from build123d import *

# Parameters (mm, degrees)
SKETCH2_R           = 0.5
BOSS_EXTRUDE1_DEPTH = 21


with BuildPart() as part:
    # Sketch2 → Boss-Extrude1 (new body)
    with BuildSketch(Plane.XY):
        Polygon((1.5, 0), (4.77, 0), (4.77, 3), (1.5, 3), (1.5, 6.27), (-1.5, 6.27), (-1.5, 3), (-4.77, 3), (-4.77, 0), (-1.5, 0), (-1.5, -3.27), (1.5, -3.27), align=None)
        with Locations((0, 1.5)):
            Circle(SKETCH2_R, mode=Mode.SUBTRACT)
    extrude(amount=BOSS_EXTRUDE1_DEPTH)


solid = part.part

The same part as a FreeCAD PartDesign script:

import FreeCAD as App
import Part
import Sketcher
from FreeCAD import Vector
Q = App.Units.Quantity

doc = App.newDocument("Part")
params = doc.addObject("Spreadsheet::Sheet", "Params")
for row, (alias, value) in enumerate([
    ("sketch1_diameter", "1 mm"),
    ("sketch1_width", "3 mm"),
    ("sketch1_width2", "3.27 mm"),
    ("pad1_length", "21 mm"),
], start=1):
    params.set(f"A{row}", alias)
    params.set(f"B{row}", "=" + value)
    params.setAlias(f"B{row}", alias)

body = doc.addObject("PartDesign::Body", "Body")

# Sketch on XY plane
sketch1 = doc.addObject("Sketcher::SketchObject", "Sketch")
body.addObject(sketch1)
sketch1.AttachmentSupport = (doc.XY_Plane, [""])
sketch1.MapMode = "FlatFace"
sketch1.addGeometry([
    Part.LineSegment(Vector(1.5, 0, 0), Vector(4.8, 0, 0)),  # 0
    Part.LineSegment(Vector(4.8, 0, 0), Vector(4.8, 3, 0)),  # 1
    Part.LineSegment(Vector(4.8, 3, 0), Vector(1.5, 3, 0)),  # 2
    Part.LineSegment(Vector(1.5, 3, 0), Vector(1.5, 6.3, 0)),  # 3
    Part.LineSegment(Vector(1.5, 6.3, 0), Vector(-1.5, 6.3, 0)),  # 4
    Part.LineSegment(Vector(-1.5, 6.3, 0), Vector(-1.5, 3, 0)),  # 5
    Part.LineSegment(Vector(-1.5, 3, 0), Vector(-4.8, 3, 0)),  # 6
    Part.LineSegment(Vector(-4.8, 3, 0), Vector(-4.8, 0, 0)),  # 7
    Part.LineSegment(Vector(-4.8, 0, 0), Vector(-1.5, 0, 0)),  # 8
    Part.LineSegment(Vector(-1.5, 0, 0), Vector(-1.5, -3.3, 0)),  # 9
    Part.LineSegment(Vector(-1.5, -3.3, 0), Vector(1.5, -3.3, 0)),  # 10
    Part.LineSegment(Vector(1.5, -3.3, 0), Vector(1.5, 0, 0)),  # 11
    Part.Circle(Vector(0, 1.5, 0), Vector(0, 0, 1), 0.5),  # 12
], False)
sketch1.addConstraint([
    Sketcher.Constraint("Coincident", 0, 2, 1, 1),
    Sketcher.Constraint("Coincident", 1, 2, 2, 1),
    Sketcher.Constraint("Coincident", 2, 2, 3, 1),
    Sketcher.Constraint("Coincident", 3, 2, 4, 1),
    Sketcher.Constraint("Coincident", 4, 2, 5, 1),
    Sketcher.Constraint("Coincident", 5, 2, 6, 1),
    Sketcher.Constraint("Coincident", 6, 2, 7, 1),
    Sketcher.Constraint("Coincident", 7, 2, 8, 1),
    Sketcher.Constraint("Coincident", 8, 2, 9, 1),
    Sketcher.Constraint("Coincident", 9, 2, 10, 1),
    Sketcher.Constraint("Coincident", 10, 2, 11, 1),
    Sketcher.Constraint("Coincident", 11, 2, 0, 1),
    Sketcher.Constraint("Horizontal", 0),
    Sketcher.Constraint("Vertical", 1),
    Sketcher.Constraint("Horizontal", 2),
    Sketcher.Constraint("Vertical", 3),
    Sketcher.Constraint("Horizontal", 4),
    Sketcher.Constraint("Vertical", 5),
    Sketcher.Constraint("Horizontal", 6),
    Sketcher.Constraint("Vertical", 7),
    Sketcher.Constraint("Horizontal", 8),
    Sketcher.Constraint("Vertical", 9),
    Sketcher.Constraint("Horizontal", 10),
    Sketcher.Constraint("Vertical", 11),
    Sketcher.Constraint("Symmetric", 0, 2, 7, 2, -1, 1),
    Sketcher.Constraint("Symmetric", 2, 2, 5, 2, -2),
    Sketcher.Constraint("Symmetric", 8, 2, 11, 2, -2),
    Sketcher.Constraint("PointOnObject", 12, 3, -2),
    Sketcher.Constraint("Vertical", 5, 2, 8, 2),
    Sketcher.Constraint("Equal", 10, 1),
    Sketcher.Constraint("Equal", 8, 3),
    Sketcher.Constraint("Equal", 5, 9),
    Sketcher.Constraint("Diameter", 12, Q("1 mm")),
    Sketcher.Constraint("DistanceX", 4, 2, 4, 1, Q("3 mm")),
    Sketcher.Constraint("DistanceX", 0, 1, 0, 2, Q("3.27 mm")),
    Sketcher.Constraint("DistanceY", -1, 1, 12, 3, Q("1.5 mm")),
])
sketch1.setExpression("Constraints[32]", "Params.sketch1_diameter")
sketch1.setExpression("Constraints[33]", "Params.sketch1_width")
sketch1.setExpression("Constraints[34]", "Params.sketch1_width2")
pad1 = doc.addObject("PartDesign::Pad", "Pad")
body.addObject(pad1)
pad1.Profile = sketch1
pad1.setExpression("Length", "Params.pad1_length")

doc.recompute()
